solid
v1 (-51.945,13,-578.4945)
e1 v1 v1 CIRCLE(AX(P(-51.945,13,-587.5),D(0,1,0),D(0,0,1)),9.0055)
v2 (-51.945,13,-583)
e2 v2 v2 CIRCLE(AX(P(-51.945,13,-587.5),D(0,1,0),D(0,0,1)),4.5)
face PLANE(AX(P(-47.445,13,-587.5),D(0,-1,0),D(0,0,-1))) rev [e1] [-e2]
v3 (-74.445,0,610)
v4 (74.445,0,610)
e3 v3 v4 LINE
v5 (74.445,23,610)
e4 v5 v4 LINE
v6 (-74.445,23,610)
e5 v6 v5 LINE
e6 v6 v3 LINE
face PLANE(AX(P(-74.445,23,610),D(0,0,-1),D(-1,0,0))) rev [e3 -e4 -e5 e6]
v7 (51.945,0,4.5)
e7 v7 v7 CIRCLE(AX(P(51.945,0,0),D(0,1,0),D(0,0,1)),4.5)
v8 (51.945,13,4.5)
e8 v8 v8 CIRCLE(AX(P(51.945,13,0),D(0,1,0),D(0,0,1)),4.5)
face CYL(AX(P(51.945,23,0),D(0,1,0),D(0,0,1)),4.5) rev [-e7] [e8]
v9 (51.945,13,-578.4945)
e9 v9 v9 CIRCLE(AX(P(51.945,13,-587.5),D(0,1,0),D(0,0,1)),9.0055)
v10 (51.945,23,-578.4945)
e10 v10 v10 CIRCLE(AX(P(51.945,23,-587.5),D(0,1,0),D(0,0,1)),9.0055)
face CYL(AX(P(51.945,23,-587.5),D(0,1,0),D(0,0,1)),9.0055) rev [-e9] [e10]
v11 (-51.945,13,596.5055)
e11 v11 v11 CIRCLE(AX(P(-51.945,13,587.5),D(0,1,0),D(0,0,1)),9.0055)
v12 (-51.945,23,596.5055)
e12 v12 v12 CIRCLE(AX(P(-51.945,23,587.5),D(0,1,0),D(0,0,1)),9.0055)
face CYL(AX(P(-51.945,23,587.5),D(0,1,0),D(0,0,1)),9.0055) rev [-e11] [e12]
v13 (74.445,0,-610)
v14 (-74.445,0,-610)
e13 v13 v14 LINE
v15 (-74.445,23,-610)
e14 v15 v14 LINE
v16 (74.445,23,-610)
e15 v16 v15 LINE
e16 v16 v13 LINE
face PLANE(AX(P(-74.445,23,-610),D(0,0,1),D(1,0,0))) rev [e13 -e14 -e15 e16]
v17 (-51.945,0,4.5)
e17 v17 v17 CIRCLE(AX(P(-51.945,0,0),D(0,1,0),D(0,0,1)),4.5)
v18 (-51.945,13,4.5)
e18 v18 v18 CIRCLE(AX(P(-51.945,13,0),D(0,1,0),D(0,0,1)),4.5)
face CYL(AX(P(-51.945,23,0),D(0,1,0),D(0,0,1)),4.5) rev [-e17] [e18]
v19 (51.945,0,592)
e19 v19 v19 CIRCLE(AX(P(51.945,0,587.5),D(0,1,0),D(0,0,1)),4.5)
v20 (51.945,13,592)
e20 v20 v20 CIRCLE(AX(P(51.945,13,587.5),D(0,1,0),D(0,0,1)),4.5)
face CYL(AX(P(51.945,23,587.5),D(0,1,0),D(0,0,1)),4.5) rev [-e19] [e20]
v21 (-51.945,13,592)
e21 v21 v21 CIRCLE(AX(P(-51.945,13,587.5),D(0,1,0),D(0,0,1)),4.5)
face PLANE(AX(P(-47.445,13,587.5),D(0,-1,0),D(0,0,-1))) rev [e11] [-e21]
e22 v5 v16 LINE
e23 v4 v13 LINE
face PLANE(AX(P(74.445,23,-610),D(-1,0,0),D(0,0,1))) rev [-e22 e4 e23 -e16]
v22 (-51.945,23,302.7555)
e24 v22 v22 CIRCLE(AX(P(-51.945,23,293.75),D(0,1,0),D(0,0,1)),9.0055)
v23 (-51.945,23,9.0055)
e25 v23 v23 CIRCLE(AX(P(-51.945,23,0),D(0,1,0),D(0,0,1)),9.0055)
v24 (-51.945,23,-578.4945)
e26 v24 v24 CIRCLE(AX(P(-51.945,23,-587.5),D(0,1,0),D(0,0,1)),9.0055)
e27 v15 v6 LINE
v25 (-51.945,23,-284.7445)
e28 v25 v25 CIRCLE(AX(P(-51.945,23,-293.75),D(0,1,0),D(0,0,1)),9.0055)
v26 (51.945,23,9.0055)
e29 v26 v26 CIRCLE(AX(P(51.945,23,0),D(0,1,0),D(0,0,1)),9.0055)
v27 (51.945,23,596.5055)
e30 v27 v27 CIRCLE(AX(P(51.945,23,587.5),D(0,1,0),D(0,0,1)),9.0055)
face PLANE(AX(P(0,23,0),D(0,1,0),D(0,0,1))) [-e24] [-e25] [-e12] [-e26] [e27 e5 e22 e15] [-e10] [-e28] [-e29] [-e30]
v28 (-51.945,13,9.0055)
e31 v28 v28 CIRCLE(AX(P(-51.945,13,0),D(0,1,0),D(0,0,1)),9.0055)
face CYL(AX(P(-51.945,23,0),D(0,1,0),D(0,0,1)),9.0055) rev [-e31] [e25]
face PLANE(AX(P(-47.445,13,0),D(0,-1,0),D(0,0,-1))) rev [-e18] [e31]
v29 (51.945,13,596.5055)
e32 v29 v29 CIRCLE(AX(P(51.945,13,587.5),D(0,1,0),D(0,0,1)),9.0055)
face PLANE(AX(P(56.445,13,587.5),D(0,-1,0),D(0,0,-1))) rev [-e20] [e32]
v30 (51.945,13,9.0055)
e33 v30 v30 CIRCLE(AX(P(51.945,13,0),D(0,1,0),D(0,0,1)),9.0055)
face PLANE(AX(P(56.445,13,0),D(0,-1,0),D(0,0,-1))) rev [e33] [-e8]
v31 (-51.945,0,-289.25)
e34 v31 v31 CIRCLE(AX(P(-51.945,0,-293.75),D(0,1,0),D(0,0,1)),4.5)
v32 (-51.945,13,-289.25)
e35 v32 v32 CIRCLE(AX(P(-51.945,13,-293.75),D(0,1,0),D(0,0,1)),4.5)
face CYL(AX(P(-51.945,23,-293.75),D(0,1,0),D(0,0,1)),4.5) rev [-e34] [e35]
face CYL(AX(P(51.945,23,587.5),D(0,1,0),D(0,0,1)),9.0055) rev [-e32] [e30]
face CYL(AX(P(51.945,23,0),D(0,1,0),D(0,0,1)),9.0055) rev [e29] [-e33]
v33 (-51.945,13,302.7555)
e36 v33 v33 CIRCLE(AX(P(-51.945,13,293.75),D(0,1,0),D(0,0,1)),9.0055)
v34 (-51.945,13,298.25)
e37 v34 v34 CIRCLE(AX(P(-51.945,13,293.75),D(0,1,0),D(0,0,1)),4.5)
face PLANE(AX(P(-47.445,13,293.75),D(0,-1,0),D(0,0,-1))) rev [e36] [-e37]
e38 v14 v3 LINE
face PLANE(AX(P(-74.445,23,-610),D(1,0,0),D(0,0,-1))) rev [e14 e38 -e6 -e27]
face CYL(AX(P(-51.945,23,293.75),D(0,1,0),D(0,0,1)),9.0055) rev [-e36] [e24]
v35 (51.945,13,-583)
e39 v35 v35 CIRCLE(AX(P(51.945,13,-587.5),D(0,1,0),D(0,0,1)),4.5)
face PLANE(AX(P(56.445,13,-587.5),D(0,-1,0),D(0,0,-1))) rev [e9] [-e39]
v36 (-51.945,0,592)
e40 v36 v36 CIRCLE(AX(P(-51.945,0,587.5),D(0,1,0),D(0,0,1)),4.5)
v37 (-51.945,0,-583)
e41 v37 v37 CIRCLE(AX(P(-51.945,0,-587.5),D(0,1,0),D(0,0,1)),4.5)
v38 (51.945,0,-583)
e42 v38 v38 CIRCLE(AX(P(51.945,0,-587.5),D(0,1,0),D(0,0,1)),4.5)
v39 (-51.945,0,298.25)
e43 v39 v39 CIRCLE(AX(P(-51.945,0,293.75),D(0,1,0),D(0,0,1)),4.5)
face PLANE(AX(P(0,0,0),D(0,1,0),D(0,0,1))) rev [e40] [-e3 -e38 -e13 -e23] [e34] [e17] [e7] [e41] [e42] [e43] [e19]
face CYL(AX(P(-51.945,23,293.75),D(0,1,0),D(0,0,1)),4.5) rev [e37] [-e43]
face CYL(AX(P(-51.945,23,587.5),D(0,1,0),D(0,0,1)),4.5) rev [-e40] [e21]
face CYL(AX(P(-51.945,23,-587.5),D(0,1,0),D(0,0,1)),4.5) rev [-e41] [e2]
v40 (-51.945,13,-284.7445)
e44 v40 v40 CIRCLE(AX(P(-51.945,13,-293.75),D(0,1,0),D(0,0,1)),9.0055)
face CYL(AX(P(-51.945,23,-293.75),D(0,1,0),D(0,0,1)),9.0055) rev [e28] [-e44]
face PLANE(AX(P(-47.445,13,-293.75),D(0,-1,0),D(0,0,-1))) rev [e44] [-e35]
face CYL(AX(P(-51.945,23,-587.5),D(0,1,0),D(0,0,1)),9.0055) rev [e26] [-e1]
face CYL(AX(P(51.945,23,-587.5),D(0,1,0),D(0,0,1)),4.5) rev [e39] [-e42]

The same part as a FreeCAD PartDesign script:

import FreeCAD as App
import Part
import Sketcher

doc = App.newDocument("Part")
body = doc.addObject("PartDesign::Body", "Body")

sketch1 = body.newObject("Sketcher::SketchObject", "Sketch")
sketch1.AttachmentSupport = (doc.getObject("XZ_Plane"), [""])
sketch1.MapMode = "FlatFace"
sketch1.addGeometry(Part.LineSegment(App.Vector(-74, -610, 0), App.Vector(-74, 610, 0)), False)
sketch1.addGeometry(Part.LineSegment(App.Vector(-74, 610, 0), App.Vector(74, 610, 0)), False)
sketch1.addGeometry(Part.LineSegment(App.Vector(74, 610, 0), App.Vector(74, -610, 0)), False)
sketch1.addGeometry(Part.LineSegment(App.Vector(74, -610, 0), App.Vector(-74, -610, 0)), False)
sketch1.addConstraint(Sketcher.Constraint("Coincident", 0, 2, 1, 1))
sketch1.addConstraint(Sketcher.Constraint("Coincident", 1, 2, 2, 1))
sketch1.addConstraint(Sketcher.Constraint("Coincident", 2, 2, 3, 1))
sketch1.addConstraint(Sketcher.Constraint("Coincident", 3, 2, 0, 1))
sketch1.addConstraint(Sketcher.Constraint("Vertical", 0))
sketch1.addConstraint(Sketcher.Constraint("Horizontal", 1))
sketch1.addConstraint(Sketcher.Constraint("Vertical", 2))
sketch1.addConstraint(Sketcher.Constraint("Horizontal", 3))
sketch1.addConstraint(Sketcher.Constraint("Symmetric", 0, 2, 2, 2, -1, 1))
sketch1.addConstraint(Sketcher.Constraint("DistanceY", 0, 1, 0, 2, 1220.0))
sketch1.addConstraint(Sketcher.Constraint("DistanceX", 1, 1, 1, 2, 148.89))
pad1 = body.newObject("PartDesign::Pad", "Pad")
pad1.Profile = sketch1
pad1.Length = 23
pad1.Reversed = True

sketch2 = body.newObject("Sketcher::SketchObject", "Sketch001")
sketch2.AttachmentSupport = (doc.getObject("XZ_Plane"), [""])
sketch2.MapMode = "FlatFace"
sketch2.AttachmentOffset = App.Placement(App.Vector(0, 0, -23), App.Rotation())
sketch2.addGeometry(Part.Circle(App.Vector(-51.9, -587.5, 0), App.Vector(0, 0, 1), 4.5), False)
sketch2.addGeometry(Part.Circle(App.Vector(51.9, -587.5, 0), App.Vector(0, 0, 1), 4.5), False)
sketch2.addGeometry(Part.Circle(App.Vector(-51.9, 0, 0), App.Vector(0, 0, 1), 4.5), False)
sketch2.addGeometry(Part.Circle(App.Vector(51.9, 0, 0), App.Vector(0, 0, 1), 4.5), False)
sketch2.addGeometry(Part.Circle(App.Vector(-51.9, 587.5, 0), App.Vector(0, 0, 1), 4.5), False)
sketch2.addGeometry(Part.Circle(App.Vector(51.9, 587.5, 0), App.Vector(0, 0, 1), 4.5), False)
sketch2.addGeometry(Part.Circle(App.Vector(-51.9, 293.8, 0), App.Vector(0, 0, 1), 4.5), False)
sketch2.addGeometry(Part.Circle(App.Vector(-51.9, -293.8, 0), App.Vector(0, 0, 1), 4.5), False)
sketch2.addConstraint(Sketcher.Constraint("Equal", 0, 1))
sketch2.addConstraint(Sketcher.Constraint("Equal", 1, 2))
sketch2.addConstraint(Sketcher.Constraint("Equal", 2, 3))
sketch2.addConstraint(Sketcher.Constraint("Equal", 3, 4))
sketch2.addConstraint(Sketcher.Constraint("Equal", 4, 5))
sketch2.addConstraint(Sketcher.Constraint("Equal", 5, 6))
sketch2.addConstraint(Sketcher.Constraint("Equal", 6, 7))
sketch2.addConstraint(Sketcher.Constraint("Symmetric", 2, 3, 3, 3, -1, 1))
sketch2.addConstraint(Sketcher.Constraint("Symmetric", 1, 3, 4, 3, -1, 1))
sketch2.addConstraint(Sketcher.Constraint("Symmetric", 0, 3, 5, 3, -1, 1))
sketch2.addConstraint(Sketcher.Constraint("Symmetric", 0, 3, 1, 3, -2))
sketch2.addConstraint(Sketcher.Constraint("Symmetric", 6, 3, 7, 3, -1))
sketch2.addConstraint(Sketcher.Constraint("PointOnObject", 2, 3, -1))
sketch2.addConstraint(Sketcher.Constraint("Vertical", 0, 3, 2, 3))
sketch2.addConstraint(Sketcher.Constraint("Vertical", 4, 3, 6, 3))
sketch2.addConstraint(Sketcher.Constraint("Diameter", 0, 9.0))
sketch2.addConstraint(Sketcher.Constraint("DistanceY", 0, 3, 4, 3, 1175.0))
sketch2.addConstraint(Sketcher.Constraint("DistanceY", 7, 3, 6, 3, 587.5))
sketch2.addConstraint(Sketcher.Constraint("DistanceX", 0, 3, 1, 3, 103.89))
doc.recompute()
hole = body.newObject("PartDesign::Hole", "Hole")
hole.Profile = sketch2
hole.ThreadType = "None"
hole.Diameter = 9
hole.DepthType = "ThroughAll"
hole.HoleCutType = "Counterbore"
hole.HoleCutDiameter = 18.011
hole.HoleCutDepth = 10
hole.Reversed = True

doc.recompute()
